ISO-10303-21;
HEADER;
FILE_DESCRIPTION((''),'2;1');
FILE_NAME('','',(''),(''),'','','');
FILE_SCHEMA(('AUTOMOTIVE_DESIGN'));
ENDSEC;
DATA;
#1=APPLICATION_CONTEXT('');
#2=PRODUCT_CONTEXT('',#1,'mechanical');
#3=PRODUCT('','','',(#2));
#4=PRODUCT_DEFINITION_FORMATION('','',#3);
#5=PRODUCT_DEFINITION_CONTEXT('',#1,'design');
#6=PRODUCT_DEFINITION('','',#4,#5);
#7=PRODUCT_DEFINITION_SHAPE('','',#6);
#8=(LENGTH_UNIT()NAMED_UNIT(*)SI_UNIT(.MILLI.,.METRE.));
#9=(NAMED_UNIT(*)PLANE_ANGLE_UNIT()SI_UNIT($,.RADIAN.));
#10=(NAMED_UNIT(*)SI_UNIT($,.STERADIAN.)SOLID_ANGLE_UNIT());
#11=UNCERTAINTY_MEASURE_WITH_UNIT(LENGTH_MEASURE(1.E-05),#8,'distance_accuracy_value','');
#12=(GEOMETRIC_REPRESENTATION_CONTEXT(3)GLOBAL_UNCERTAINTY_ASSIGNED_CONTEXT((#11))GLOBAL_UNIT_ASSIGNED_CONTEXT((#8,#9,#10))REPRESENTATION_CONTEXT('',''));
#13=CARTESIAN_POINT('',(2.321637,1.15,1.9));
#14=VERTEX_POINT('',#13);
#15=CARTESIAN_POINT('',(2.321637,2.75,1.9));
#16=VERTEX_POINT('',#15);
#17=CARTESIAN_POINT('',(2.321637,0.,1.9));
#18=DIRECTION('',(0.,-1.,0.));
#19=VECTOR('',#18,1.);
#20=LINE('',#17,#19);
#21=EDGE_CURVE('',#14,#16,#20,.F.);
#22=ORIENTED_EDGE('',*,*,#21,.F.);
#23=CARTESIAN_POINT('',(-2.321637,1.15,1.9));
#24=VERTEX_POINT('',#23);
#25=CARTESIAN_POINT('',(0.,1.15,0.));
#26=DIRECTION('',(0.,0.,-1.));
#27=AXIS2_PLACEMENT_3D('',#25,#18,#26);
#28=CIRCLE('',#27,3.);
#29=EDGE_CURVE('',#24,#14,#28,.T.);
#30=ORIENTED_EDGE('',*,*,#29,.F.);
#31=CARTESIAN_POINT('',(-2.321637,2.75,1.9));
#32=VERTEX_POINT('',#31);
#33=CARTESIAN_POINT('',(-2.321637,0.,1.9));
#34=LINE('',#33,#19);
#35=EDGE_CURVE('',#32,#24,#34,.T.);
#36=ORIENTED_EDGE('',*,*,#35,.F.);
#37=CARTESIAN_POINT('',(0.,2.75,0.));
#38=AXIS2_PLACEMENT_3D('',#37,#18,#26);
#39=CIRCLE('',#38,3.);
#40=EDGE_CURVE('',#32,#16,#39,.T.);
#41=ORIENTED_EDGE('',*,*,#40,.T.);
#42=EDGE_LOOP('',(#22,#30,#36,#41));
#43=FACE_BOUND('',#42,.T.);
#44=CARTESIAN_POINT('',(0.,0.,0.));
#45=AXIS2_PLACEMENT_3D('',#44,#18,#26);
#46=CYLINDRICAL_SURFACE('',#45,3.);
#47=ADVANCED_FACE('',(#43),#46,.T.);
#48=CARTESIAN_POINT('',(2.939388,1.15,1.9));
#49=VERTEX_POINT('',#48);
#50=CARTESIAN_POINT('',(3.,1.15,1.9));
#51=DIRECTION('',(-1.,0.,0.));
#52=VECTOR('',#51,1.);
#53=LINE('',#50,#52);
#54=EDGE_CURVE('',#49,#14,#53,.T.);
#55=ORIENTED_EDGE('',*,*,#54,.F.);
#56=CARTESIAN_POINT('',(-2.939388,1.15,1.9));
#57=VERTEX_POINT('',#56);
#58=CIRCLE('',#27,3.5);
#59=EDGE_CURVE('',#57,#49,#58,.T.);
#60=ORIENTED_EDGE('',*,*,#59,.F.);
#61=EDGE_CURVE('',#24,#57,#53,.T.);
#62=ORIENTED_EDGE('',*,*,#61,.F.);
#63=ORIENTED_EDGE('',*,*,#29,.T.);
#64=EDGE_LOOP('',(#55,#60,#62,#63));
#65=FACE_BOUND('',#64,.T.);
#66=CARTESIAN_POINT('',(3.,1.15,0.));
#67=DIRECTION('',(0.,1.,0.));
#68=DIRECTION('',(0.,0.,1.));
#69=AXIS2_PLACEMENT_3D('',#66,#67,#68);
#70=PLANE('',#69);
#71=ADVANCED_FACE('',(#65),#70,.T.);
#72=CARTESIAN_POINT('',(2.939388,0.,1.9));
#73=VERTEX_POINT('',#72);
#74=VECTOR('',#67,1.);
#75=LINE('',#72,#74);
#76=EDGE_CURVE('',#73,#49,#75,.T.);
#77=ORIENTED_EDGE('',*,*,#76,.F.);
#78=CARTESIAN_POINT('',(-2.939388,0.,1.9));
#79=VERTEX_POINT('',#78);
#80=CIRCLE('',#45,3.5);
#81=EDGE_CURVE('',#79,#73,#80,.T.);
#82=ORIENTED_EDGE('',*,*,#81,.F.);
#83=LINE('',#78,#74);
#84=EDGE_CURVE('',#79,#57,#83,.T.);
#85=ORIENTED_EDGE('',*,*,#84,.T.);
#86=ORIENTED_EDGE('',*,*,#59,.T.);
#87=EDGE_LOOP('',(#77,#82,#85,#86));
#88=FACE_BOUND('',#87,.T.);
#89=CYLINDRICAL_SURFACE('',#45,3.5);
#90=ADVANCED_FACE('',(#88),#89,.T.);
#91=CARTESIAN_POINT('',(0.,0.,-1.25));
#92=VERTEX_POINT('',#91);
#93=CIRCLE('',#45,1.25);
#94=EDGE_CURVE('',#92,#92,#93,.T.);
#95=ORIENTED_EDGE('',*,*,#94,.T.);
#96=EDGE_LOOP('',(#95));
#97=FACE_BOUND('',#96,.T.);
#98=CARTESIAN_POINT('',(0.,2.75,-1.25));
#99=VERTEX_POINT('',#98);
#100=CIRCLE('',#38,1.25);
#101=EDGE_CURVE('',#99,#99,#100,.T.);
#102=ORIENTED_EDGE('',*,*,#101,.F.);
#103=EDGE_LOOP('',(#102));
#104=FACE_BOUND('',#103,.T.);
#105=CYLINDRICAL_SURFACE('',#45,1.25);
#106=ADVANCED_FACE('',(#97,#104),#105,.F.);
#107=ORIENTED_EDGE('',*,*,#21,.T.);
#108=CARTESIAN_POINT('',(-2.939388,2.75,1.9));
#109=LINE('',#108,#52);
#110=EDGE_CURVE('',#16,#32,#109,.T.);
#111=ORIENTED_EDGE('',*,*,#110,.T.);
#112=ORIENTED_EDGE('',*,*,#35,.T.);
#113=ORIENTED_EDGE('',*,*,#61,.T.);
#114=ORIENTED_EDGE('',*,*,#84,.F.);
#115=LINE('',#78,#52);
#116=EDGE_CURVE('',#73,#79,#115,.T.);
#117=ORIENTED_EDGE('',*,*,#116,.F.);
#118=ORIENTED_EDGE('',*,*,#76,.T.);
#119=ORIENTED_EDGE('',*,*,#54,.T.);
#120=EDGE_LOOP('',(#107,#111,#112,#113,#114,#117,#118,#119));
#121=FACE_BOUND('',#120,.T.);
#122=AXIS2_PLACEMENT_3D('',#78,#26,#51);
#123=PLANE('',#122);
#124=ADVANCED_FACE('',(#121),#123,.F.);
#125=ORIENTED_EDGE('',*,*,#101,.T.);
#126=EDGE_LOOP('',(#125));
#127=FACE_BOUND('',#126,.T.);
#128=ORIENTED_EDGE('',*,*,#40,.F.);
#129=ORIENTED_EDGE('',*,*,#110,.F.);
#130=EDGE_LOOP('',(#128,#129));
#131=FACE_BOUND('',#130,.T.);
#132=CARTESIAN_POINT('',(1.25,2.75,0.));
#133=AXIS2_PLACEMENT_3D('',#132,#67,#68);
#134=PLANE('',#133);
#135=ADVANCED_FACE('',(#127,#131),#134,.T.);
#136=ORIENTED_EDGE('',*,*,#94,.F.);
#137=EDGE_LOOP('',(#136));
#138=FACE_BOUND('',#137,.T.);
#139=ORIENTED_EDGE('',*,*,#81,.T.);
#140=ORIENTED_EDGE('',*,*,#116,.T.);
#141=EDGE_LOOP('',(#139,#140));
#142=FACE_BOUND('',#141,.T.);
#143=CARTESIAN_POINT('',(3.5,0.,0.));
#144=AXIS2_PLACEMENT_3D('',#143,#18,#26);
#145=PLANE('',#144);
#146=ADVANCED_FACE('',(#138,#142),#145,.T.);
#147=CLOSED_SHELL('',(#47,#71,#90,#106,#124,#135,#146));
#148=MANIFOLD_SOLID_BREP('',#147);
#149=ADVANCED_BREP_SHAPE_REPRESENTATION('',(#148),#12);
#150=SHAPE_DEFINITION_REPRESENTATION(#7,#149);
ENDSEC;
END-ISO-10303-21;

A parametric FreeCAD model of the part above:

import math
import FreeCAD as App
import Part
import Sketcher
from FreeCAD import Vector


def add_polygon(sketch, points):
    """Adds a closed chain of lines whose ends are joined by coincident constraints."""
    first, n = sketch.GeometryCount, len(points)
    for a, b in zip(points, points[1:] + points[:1]):
        sketch.addGeometry(Part.LineSegment(App.Vector(*a, 0), App.Vector(*b, 0)), False)
    for i in range(n):
        sketch.addConstraint(Sketcher.Constraint("Coincident", first + i, 2, first + (i + 1) % n, 1))

doc = App.newDocument("Part")
body = doc.addObject("PartDesign::Body", "Body")

sketch1 = body.newObject("Sketcher::SketchObject", "Sketch")
sketch1.AttachmentSupport = (doc.getObject("XY_Plane"), [""])
sketch1.MapMode = "FlatFace"
add_polygon(sketch1, [(1.2, 2.8), (1.2, 0), (3.5, 0), (3.5, 1.1), (3, 1.1), (3, 2.8)])
sketch1.addConstraint([
    Sketcher.Constraint("Vertical", 0),
    Sketcher.Constraint("Horizontal", 1),
    Sketcher.Constraint("Vertical", 2),
    Sketcher.Constraint("Horizontal", 3),
    Sketcher.Constraint("Vertical", 4),
    Sketcher.Constraint("Horizontal", 5),
    Sketcher.Constraint("PointOnObject", 0, 2, -1),
    Sketcher.Constraint("DistanceX", 3, 2, 3, 1, 0.5),
    Sketcher.Constraint("DistanceY", 4, 1, 4, 2, 1.6),
    Sketcher.Constraint("DistanceX", -1, 1, 3, 2, 3.0),
    Sketcher.Constraint("DistanceX", 1, 1, 1, 2, 2.25),
    Sketcher.Constraint("DistanceY", 0, 2, 0, 1, 2.75),
])
revolution = body.newObject("PartDesign::Revolution", "Revolution")
revolution.Profile = sketch1
revolution.ReferenceAxis = (sketch1, ["V_Axis"])
revolution.Angle = 360

sketch2 = body.newObject("Sketcher::SketchObject", "Sketch001")
sketch2.AttachmentSupport = (doc.getObject("XZ_Plane"), [""])
sketch2.MapMode = "FlatFace"
sketch2.AttachmentOffset = App.Placement(Vector(0, 0, -2.75), App.Rotation())
sketch2.addGeometry([
    Part.LineSegment(Vector(2.9, 1.9, 0), Vector(-2.9, 1.9, 0)),
    Part.ArcOfCircle(Part.Circle(Vector(0, 0, 0), Vector(0, 0, 1), 3.5), math.radians(33), math.radians(147)),
], False)
sketch2.addConstraint([
    Sketcher.Constraint("Coincident", 0, 1, 1, 1),
    Sketcher.Constraint("Coincident", 1, 2, 0, 2),
    Sketcher.Constraint("Horizontal", 0),
    Sketcher.Constraint("Coincident", 1, 3, -1, 1),
    Sketcher.Constraint("Radius", 1, 3.5),
    Sketcher.Constraint("DistanceY", -1, 1, 0, 1, 1.9),
])
pocket1 = body.newObject("PartDesign::Pocket", "Pocket")
pocket1.Profile = sketch2
pocket1.Type = "ThroughAll"
pocket1.Reversed = True

doc.recompute()
